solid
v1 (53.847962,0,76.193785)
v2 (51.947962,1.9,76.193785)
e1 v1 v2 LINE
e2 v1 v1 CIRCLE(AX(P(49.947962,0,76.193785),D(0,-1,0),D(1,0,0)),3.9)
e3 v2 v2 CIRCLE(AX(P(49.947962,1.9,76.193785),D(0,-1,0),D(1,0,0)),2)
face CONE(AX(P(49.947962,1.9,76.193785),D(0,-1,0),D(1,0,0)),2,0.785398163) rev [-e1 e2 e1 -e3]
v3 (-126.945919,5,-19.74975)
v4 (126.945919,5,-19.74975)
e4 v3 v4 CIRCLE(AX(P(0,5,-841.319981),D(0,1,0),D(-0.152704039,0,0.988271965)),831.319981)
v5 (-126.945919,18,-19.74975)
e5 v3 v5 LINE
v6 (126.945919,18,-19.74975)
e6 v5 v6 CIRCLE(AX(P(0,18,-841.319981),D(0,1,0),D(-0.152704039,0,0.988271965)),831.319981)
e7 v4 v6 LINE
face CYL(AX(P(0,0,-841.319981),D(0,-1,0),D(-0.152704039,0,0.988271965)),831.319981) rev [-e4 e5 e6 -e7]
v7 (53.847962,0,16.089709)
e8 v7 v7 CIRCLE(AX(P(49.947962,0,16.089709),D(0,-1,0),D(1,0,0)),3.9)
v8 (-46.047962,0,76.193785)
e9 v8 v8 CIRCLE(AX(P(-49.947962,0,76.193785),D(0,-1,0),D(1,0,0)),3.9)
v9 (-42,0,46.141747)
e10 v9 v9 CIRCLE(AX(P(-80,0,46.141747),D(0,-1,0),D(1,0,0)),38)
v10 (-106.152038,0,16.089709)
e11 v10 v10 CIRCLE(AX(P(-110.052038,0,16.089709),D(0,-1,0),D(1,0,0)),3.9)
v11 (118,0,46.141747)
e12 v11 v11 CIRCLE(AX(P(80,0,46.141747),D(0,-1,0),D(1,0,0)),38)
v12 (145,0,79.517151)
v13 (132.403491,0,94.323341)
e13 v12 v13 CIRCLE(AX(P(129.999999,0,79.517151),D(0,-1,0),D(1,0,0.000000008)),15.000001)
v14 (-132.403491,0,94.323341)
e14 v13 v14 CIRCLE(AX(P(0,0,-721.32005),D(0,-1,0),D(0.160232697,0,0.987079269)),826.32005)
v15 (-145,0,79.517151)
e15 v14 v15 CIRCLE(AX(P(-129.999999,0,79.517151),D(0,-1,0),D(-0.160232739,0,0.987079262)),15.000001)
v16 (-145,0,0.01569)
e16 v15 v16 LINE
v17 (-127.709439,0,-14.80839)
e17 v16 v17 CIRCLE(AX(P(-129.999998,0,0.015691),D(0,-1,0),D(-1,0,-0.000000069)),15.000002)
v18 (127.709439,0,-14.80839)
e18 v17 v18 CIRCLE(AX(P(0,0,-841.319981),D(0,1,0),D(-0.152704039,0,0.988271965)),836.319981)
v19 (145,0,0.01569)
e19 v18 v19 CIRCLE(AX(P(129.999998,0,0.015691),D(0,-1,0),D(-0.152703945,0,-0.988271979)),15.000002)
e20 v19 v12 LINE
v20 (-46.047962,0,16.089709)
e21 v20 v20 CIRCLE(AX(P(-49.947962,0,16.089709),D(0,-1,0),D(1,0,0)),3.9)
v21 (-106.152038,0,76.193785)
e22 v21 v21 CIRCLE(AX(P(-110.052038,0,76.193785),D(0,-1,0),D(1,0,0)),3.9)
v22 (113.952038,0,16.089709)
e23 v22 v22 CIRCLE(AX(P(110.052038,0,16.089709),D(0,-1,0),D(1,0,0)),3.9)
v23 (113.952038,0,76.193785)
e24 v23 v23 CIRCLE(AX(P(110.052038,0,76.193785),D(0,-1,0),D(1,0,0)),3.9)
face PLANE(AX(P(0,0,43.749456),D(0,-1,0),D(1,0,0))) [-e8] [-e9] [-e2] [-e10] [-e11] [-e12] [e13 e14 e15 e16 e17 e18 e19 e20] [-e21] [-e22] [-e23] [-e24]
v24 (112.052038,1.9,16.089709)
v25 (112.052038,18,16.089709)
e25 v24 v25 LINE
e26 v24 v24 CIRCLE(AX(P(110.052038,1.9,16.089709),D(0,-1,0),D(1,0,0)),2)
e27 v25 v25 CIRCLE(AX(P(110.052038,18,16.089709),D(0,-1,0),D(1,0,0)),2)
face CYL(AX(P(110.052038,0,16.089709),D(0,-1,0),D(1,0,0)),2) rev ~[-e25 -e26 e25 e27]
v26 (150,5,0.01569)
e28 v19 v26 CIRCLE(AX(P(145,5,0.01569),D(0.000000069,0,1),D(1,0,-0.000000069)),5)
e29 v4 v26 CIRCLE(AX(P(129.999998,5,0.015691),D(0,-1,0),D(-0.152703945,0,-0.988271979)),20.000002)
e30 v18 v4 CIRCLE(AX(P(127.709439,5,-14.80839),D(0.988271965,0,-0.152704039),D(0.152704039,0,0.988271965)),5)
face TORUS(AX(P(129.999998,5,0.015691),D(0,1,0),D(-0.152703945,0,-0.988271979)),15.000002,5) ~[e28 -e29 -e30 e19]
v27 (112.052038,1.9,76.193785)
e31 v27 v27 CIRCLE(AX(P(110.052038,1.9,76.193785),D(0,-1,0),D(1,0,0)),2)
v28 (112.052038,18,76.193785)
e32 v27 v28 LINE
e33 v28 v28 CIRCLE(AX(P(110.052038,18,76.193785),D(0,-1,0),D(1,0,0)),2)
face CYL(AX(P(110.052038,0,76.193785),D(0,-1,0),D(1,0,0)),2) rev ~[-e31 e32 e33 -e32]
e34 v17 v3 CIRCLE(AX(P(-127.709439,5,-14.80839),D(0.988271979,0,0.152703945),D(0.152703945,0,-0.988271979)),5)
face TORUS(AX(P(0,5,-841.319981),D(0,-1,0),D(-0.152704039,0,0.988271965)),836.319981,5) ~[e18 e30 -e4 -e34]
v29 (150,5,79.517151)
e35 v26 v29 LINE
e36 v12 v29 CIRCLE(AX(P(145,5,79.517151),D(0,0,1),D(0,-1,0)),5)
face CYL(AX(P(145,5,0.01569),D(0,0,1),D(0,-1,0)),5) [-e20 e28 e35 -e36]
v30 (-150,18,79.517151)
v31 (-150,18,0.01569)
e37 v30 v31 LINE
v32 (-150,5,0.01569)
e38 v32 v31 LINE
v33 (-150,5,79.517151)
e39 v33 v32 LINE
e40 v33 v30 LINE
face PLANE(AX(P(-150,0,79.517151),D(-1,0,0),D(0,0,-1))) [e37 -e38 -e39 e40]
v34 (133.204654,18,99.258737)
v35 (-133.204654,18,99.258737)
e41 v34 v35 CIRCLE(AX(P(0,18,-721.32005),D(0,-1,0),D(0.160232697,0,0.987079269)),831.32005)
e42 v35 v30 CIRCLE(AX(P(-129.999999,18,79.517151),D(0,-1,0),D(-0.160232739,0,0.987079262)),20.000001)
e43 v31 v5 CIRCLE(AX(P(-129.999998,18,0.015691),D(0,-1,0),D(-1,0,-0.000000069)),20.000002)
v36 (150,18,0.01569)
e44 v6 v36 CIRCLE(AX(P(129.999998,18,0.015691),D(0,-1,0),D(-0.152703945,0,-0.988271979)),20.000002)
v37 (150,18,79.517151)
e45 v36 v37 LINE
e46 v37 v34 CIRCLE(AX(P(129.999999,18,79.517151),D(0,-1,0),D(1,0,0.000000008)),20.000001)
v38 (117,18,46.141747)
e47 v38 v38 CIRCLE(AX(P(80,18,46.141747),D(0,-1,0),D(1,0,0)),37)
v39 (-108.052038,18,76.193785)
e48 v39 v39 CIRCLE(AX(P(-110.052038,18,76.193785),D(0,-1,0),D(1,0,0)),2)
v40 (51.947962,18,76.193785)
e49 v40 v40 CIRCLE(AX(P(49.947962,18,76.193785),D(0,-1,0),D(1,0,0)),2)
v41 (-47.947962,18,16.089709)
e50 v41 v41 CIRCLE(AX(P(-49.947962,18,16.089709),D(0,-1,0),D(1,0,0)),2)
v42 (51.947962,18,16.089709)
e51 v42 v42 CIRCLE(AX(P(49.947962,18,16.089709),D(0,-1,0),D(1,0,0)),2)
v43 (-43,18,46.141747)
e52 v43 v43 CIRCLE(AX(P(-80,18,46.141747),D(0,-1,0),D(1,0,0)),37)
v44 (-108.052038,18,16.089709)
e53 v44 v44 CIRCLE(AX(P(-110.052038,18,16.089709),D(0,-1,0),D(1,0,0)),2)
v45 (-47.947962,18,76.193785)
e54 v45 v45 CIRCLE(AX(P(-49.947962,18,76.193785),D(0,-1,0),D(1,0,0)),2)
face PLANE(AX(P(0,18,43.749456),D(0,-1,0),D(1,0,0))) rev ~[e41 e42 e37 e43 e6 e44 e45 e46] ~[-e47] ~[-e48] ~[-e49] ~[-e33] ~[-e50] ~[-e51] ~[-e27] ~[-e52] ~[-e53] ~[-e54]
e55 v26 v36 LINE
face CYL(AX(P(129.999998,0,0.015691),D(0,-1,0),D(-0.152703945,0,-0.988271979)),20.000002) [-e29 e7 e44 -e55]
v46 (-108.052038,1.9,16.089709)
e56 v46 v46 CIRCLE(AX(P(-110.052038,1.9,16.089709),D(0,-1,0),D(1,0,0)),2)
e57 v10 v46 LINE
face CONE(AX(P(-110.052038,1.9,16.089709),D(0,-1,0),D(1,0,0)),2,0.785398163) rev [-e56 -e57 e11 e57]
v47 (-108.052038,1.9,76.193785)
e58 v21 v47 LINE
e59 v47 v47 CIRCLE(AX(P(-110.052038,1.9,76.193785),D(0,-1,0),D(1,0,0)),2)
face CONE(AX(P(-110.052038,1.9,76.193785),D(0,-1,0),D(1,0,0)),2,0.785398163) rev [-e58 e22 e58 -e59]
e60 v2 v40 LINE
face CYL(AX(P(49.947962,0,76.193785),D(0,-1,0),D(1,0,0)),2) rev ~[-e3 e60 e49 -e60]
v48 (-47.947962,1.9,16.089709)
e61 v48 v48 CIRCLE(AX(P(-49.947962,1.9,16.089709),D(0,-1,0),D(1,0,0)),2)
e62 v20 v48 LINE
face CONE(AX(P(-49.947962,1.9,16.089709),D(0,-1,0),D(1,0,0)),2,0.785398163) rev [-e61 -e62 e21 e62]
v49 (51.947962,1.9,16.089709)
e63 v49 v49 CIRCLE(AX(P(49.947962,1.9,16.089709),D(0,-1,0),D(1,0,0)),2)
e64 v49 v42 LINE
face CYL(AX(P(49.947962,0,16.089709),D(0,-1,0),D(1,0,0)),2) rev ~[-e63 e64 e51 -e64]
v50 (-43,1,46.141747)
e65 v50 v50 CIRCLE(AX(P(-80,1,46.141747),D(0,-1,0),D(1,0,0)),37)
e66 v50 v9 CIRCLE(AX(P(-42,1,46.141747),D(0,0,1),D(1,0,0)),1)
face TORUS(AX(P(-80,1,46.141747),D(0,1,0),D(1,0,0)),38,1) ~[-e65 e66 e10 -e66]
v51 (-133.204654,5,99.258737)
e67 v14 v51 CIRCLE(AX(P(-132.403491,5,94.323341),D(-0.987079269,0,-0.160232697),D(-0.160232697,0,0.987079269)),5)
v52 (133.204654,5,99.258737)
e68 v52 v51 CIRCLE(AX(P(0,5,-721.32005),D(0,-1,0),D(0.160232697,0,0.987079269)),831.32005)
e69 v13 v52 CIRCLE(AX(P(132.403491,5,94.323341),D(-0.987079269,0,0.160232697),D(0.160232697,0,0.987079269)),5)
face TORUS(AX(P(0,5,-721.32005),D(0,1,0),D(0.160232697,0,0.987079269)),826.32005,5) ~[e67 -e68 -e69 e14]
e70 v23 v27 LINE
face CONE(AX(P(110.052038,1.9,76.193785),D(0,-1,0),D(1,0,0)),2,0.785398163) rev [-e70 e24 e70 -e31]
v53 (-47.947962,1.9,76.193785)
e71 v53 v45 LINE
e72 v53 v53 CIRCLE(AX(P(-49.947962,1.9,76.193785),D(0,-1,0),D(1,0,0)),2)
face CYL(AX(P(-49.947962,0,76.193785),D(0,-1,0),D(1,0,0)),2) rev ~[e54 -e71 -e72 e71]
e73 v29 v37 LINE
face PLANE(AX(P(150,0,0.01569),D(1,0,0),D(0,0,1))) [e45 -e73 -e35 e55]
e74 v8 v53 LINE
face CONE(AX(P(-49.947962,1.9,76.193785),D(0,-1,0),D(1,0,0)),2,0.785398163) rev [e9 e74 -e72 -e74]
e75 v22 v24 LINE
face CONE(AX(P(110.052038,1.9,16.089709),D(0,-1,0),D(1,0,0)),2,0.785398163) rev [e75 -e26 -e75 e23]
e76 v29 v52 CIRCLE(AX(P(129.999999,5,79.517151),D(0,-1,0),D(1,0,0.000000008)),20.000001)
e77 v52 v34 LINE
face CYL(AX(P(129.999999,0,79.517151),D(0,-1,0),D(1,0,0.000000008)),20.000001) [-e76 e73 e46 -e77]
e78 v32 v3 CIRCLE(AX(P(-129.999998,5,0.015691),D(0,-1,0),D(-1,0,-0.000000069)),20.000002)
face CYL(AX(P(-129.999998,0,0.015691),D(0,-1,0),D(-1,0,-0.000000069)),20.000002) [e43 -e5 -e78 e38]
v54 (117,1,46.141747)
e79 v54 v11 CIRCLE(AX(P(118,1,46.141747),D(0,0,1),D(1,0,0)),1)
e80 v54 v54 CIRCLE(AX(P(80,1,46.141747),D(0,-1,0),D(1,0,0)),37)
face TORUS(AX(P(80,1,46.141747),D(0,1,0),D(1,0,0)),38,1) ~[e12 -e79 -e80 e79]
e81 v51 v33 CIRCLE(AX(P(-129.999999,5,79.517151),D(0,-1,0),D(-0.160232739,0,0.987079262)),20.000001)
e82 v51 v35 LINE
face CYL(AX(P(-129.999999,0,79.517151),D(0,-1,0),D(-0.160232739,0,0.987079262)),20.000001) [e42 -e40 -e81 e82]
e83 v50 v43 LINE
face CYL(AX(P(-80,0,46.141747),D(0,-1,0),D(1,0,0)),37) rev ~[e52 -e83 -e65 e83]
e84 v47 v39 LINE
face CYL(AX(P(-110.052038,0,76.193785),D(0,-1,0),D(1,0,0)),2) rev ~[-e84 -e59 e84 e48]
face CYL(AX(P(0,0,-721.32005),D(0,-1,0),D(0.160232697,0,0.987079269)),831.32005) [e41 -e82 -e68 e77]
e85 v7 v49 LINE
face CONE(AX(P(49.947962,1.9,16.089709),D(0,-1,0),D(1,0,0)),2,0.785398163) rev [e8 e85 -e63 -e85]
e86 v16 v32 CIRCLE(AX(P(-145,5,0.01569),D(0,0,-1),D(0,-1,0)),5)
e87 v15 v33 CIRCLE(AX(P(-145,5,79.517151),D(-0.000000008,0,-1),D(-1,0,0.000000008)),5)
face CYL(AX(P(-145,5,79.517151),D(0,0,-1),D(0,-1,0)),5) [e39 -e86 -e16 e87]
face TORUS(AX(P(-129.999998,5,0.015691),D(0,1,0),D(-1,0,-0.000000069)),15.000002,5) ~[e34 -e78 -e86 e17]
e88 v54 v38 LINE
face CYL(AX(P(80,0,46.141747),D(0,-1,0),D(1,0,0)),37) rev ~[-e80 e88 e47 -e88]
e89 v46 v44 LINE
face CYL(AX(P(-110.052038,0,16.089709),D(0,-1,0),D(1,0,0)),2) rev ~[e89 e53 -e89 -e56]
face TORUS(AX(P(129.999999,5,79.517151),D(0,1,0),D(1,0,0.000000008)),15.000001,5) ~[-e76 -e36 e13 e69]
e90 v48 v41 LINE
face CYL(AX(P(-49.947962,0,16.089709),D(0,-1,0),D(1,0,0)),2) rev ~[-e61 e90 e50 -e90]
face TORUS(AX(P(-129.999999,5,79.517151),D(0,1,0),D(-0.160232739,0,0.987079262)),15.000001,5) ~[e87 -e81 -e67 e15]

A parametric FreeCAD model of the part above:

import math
import FreeCAD as App
import Part
import Sketcher
from FreeCAD import Vector
Q = App.Units.Quantity


def edges_at(feature, points):
    """Names of the edges that pass closest to the given points."""
    edges = feature.Shape.Edges
    near = lambda p: min(range(len(edges)), key=lambda i: edges[i].distToShape(Part.Vertex(*p))[0])
    return sorted({f"Edge{near(p) + 1}" for p in points})

doc = App.newDocument("Part")
body = doc.addObject("PartDesign::Body", "Body")

sketch1 = body.newObject("Sketcher::SketchObject", "Sketch")
sketch1.AttachmentSupport = (doc.getObject("XZ_Plane"), [""])
sketch1.MapMode = "FlatFace"
sketch1.addGeometry(Part.ArcOfCircle(Part.Circle(Vector(-130, 79.5, 0), Vector(0, 0, 1), 20), math.radians(99), math.radians(180)), False)
sketch1.addGeometry(Part.LineSegment(Vector(-150, 79.5, 0), Vector(-150, 0, 0)), False)
sketch1.addGeometry(Part.ArcOfCircle(Part.Circle(Vector(-130, 0, 0), Vector(0, 0, 1), 20), math.radians(-180), math.radians(-81)), False)
sketch1.addGeometry(Part.ArcOfCircle(Part.Circle(Vector(0, -841.3, 0), Vector(0, 0, 1), 831.3), math.radians(81.22), math.radians(98.78)), False)
sketch1.addGeometry(Part.ArcOfCircle(Part.Circle(Vector(130, 0, 0), Vector(0, 0, 1), 20), math.radians(-99), math.radians(0)), False)
sketch1.addGeometry(Part.LineSegment(Vector(150, 0, 0), Vector(150, 79.5, 0)), False)
sketch1.addGeometry(Part.ArcOfCircle(Part.Circle(Vector(130, 79.5, 0), Vector(0, 0, 1), 20), math.radians(0), math.radians(81)), False)
sketch1.addGeometry(Part.ArcOfCircle(Part.Circle(Vector(0, -721.3, 0), Vector(0, 0, 1), 831.3), math.radians(80.78), math.radians(99.22)), False)
sketch1.addGeometry(Part.Circle(Vector(-110.1, 16.1, 0), Vector(0, 0, 1), 2), False)
sketch1.addGeometry(Part.Circle(Vector(-49.9, 16.1, 0), Vector(0, 0, 1), 2), False)
sketch1.addGeometry(Part.Circle(Vector(49.9, 16.1, 0), Vector(0, 0, 1), 2), False)
sketch1.addGeometry(Part.Circle(Vector(110.1, 16.1, 0), Vector(0, 0, 1), 2), False)
sketch1.addGeometry(Part.Circle(Vector(-80, 46.1, 0), Vector(0, 0, 1), 37), False)
sketch1.addGeometry(Part.Circle(Vector(-110.1, 76.2, 0), Vector(0, 0, 1), 2), False)
sketch1.addGeometry(Part.Circle(Vector(-49.9, 76.2, 0), Vector(0, 0, 1), 2), False)
sketch1.addGeometry(Part.Circle(Vector(80, 46.1, 0), Vector(0, 0, 1), 37), False)
sketch1.addGeometry(Part.Circle(Vector(49.9, 76.2, 0), Vector(0, 0, 1), 2), False)
sketch1.addGeometry(Part.Circle(Vector(110.1, 76.2, 0), Vector(0, 0, 1), 2), False)
sketch1.addConstraint(Sketcher.Constraint("Tangent", 0, 2, 1, 1))
sketch1.addConstraint(Sketcher.Constraint("Tangent", 1, 2, 2, 1))
sketch1.addConstraint(Sketcher.Constraint("Tangent", 2, 2, 3, 2))
sketch1.addConstraint(Sketcher.Constraint("Tangent", 3, 1, 4, 1))
sketch1.addConstraint(Sketcher.Constraint("Tangent", 4, 2, 5, 1))
sketch1.addConstraint(Sketcher.Constraint("Tangent", 5, 2, 6, 1))
sketch1.addConstraint(Sketcher.Constraint("Tangent", 6, 2, 7, 1))
sketch1.addConstraint(Sketcher.Constraint("Tangent", 7, 2, 0, 1))
sketch1.addConstraint(Sketcher.Constraint("Vertical", 1))
sketch1.addConstraint(Sketcher.Constraint("Vertical", 5))
sketch1.addConstraint(Sketcher.Constraint("Equal", 0, 2))
sketch1.addConstraint(Sketcher.Constraint("Equal", 2, 4))
sketch1.addConstraint(Sketcher.Constraint("Equal", 4, 6))
sketch1.addConstraint(Sketcher.Constraint("Equal", 8, 9))
sketch1.addConstraint(Sketcher.Constraint("Equal", 9, 10))
sketch1.addConstraint(Sketcher.Constraint("Equal", 10, 11))
sketch1.addConstraint(Sketcher.Constraint("Equal", 11, 13))
sketch1.addConstraint(Sketcher.Constraint("Equal", 13, 14))
sketch1.addConstraint(Sketcher.Constraint("Equal", 12, 15))
sketch1.addConstraint(Sketcher.Constraint("Equal", 14, 16))
sketch1.addConstraint(Sketcher.Constraint("Equal", 16, 17))
sketch1.addConstraint(Sketcher.Constraint("Symmetric", 2, 3, 4, 3, -2))
sketch1.addConstraint(Sketcher.Constraint("Symmetric", 9, 3, 10, 3, -2))
sketch1.addConstraint(Sketcher.Constraint("Symmetric", 8, 3, 11, 3, -2))
sketch1.addConstraint(Sketcher.Constraint("Symmetric", 12, 3, 15, 3, -2))
sketch1.addConstraint(Sketcher.Constraint("Symmetric", 14, 3, 16, 3, -2))
sketch1.addConstraint(Sketcher.Constraint("Symmetric", 13, 3, 17, 3, -2))
sketch1.addConstraint(Sketcher.Constraint("PointOnObject", 7, 3, -2))
sketch1.addConstraint(Sketcher.Constraint("Horizontal", 8, 3, 9, 3))
sketch1.addConstraint(Sketcher.Constraint("Horizontal", 13, 3, 14, 3))
sketch1.addConstraint(Sketcher.Constraint("Vertical", 8, 3, 13, 3))
sketch1.addConstraint(Sketcher.Constraint("Vertical", 9, 3, 14, 3))
sketch1.addConstraint(Sketcher.Constraint("Diameter", 8, Q("4 mm")))
sketch1.addConstraint(Sketcher.Constraint("Diameter", 12, Q("74 mm")))
sketch1.addConstraint(Sketcher.Constraint("Radius", 0, Q("20.000001 mm")))
sketch1.addConstraint(Sketcher.Constraint("DistanceX", 0, 3, -1, 1, Q("129.999999 mm")))
sketch1.addConstraint(Sketcher.Constraint("DistanceX", 12, 3, -1, 1, Q("80 mm")))
sketch1.addConstraint(Sketcher.Constraint("DistanceX", 8, 3, 10, 3, Q("160 mm")))
sketch1.addConstraint(Sketcher.Constraint("Radius", 3, Q("831.319981 mm")))
sketch1.addConstraint(Sketcher.Constraint("Radius", 7, Q("831.32005 mm")))
sketch1.addConstraint(Sketcher.Constraint("DistanceY", 1, 2, 1, 1, Q("79.501461 mm")))
sketch1.addConstraint(Sketcher.Constraint("DistanceY", -1, 1, 0, 3, Q("79.517151 mm")))
sketch1.addConstraint(Sketcher.Constraint("DistanceY", -1, 1, 8, 3, Q("16.089709 mm")))
sketch1.addConstraint(Sketcher.Constraint("DistanceX", 9, 3, -1, 1, Q("49.947962 mm")))
sketch1.addConstraint(Sketcher.Constraint("DistanceY", 8, 3, 12, 3, Q("30.052038 mm")))
sketch1.addConstraint(Sketcher.Constraint("DistanceY", 12, 3, 13, 3, Q("30.052038 mm")))
pad1 = body.newObject("PartDesign::Pad", "Pad")
pad1.Profile = sketch1
pad1.Length = 18
pad1.Reversed = True
doc.recompute()

fillet = body.newObject("PartDesign::Fillet", "Fillet")
fillet.Base = (pad1, edges_at(pad1, [(-117, 0, 46.142), (43, 0, 46.142)]))
fillet.Radius = 1
doc.recompute()

fillet2 = body.newObject("PartDesign::Fillet", "Fillet001")
fillet2.Base = (fillet, edges_at(fillet, [
    (0, 0, 110),
    (145.233, 0, 92.477),
    (150, 0, 39.766),
    (143.018, 0, -15.168),
    (0, 0, -10),
    (-143.018, 0, -15.168),
    (-150, 0, 39.766),
    (-145.233, 0, 92.477),
]))
fillet2.Radius = 5
doc.recompute()

chamfer = body.newObject("PartDesign::Chamfer", "Chamfer")
chamfer.Base = (fillet2, edges_at(fillet2, [
    (-112.052, 0, 76.194),
    (-51.948, 0, 76.194),
    (-112.052, 0, 16.09),
    (-51.948, 0, 16.09),
    (47.948, 0, 16.09),
    (47.948, 0, 76.194),
    (108.052, 0, 16.09),
    (108.052, 0, 76.194),
]))
chamfer.Size = 1.9

doc.recompute()
